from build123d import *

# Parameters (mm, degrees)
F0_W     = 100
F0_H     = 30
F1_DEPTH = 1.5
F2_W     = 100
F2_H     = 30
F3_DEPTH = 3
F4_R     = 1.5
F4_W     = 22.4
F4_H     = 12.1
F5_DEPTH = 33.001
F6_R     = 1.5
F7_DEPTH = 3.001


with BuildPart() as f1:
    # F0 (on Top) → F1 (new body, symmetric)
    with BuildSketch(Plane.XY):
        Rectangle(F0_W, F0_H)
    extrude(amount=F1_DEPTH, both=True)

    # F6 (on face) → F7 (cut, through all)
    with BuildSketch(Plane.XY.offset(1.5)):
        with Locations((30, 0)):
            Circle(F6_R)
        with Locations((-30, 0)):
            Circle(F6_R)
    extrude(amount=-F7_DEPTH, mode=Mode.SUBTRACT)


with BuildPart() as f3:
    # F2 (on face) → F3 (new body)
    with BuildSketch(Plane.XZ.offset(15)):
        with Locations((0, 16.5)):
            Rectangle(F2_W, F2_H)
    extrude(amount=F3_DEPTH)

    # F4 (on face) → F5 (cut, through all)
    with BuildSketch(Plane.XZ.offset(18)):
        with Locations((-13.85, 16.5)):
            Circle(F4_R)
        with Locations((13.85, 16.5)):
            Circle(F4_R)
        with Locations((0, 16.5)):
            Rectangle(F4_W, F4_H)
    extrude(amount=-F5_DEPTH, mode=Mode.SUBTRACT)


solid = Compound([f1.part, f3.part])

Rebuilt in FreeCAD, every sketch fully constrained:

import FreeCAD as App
import Part
import Sketcher

V = App.Vector


def add_polygon(sketch, points):
    """Adds a closed chain of lines whose ends are joined by coincident constraints."""
    first, n = sketch.GeometryCount, len(points)
    for a, b in zip(points, points[1:] + points[:1]):
        sketch.addGeometry(Part.LineSegment(App.Vector(*a, 0), App.Vector(*b, 0)), False)
    for i in range(n):
        sketch.addConstraint(Sketcher.Constraint("Coincident", first + i, 2, first + (i + 1) % n, 1))

doc = App.newDocument("Part")
body = doc.addObject("PartDesign::Body", "Body")

# Sketch on XY plane
sketch1 = body.newObject("Sketcher::SketchObject", "Sketch")
sketch1.AttachmentSupport = (doc.getObject("XY_Plane"), [""])
sketch1.MapMode = "FlatFace"
add_polygon(sketch1, [(-50, 15), (-50, -15), (50, -15), (50, 15)])  # lines 0-3
sketch1.addConstraint([
    Sketcher.Constraint("Vertical", 0),
    Sketcher.Constraint("Horizontal", 1),
    Sketcher.Constraint("Vertical", 2),
    Sketcher.Constraint("Horizontal", 3),
    Sketcher.Constraint("Symmetric", 0, 2, 2, 2, -1, 1),
    Sketcher.Constraint("DistanceX", 1, 1, 1, 2, 100.0),
    Sketcher.Constraint("DistanceY", 0, 2, 0, 1, 30.0),
])
pad1 = body.newObject("PartDesign::Pad", "Pad")
pad1.Profile = sketch1
pad1.Length = 3
pad1.Midplane = True

# Sketch on XY plane
sketch2 = body.newObject("Sketcher::SketchObject", "Sketch001")
sketch2.AttachmentSupport = (doc.getObject("XY_Plane"), [""])
sketch2.MapMode = "FlatFace"
sketch2.AttachmentOffset = App.Placement(V(0, 0, 1.5), App.Rotation())
sketch2.addGeometry([
    Part.Circle(V(30, 0, 0), V(0, 0, 1), 1.5),
    Part.Circle(V(-30, 0, 0), V(0, 0, 1), 1.5),
], False)
sketch2.addConstraint([
    Sketcher.Constraint("Equal", 0, 1),
    Sketcher.Constraint("Symmetric", 0, 3, 1, 3, -1, 1),
    Sketcher.Constraint("PointOnObject", 0, 3, -1),
    Sketcher.Constraint("Diameter", 0, 3.0),
    Sketcher.Constraint("DistanceX", -1, 1, 0, 3, 30.0),
])
pocket1 = body.newObject("PartDesign::Pocket", "Pocket")
pocket1.Profile = sketch2
pocket1.Type = "ThroughAll"
body2 = doc.addObject("PartDesign::Body", "Body001")

# Sketch on XZ plane
sketch3 = body2.newObject("Sketcher::SketchObject", "Sketch002")
sketch3.AttachmentSupport = (doc.getObject("XZ_Plane001"), [""])
sketch3.MapMode = "FlatFace"
sketch3.AttachmentOffset = App.Placement(V(0, 0, 15), App.Rotation())
add_polygon(sketch3, [(-50, 32), (-50, 2), (50, 2), (50, 32)])  # lines 0-3
sketch3.addConstraint([
    Sketcher.Constraint("Vertical", 0),
    Sketcher.Constraint("Horizontal", 1),
    Sketcher.Constraint("Vertical", 2),
    Sketcher.Constraint("Horizontal", 3),
    Sketcher.Constraint("DistanceX", 1, 1, 1, 2, 100.0),
    Sketcher.Constraint("DistanceY", 0, 2, 0, 1, 30.0),
    Sketcher.Constraint("DistanceX", 0, 2, -1, 1, 50.0),
    Sketcher.Constraint("DistanceY", -1, 1, 0, 2, 1.5),
])
pad2 = body2.newObject("PartDesign::Pad", "Pad001")
pad2.Profile = sketch3
pad2.Length = 3

# Sketch on XZ plane
sketch4 = body2.newObject("Sketcher::SketchObject", "Sketch003")
sketch4.AttachmentSupport = (doc.getObject("XZ_Plane001"), [""])
sketch4.MapMode = "FlatFace"
sketch4.AttachmentOffset = App.Placement(V(0, 0, 18), App.Rotation())
sketch4.addGeometry(Part.Circle(V(-13.8, 16.5, 0), V(0, 0, 1), 1.5), False)  # 0
sketch4.addGeometry(Part.Circle(V(13.8, 16.5, 0), V(0, 0, 1), 1.5), False)  # 1
add_polygon(sketch4, [(-11.2, 22.6), (-11.2, 10.4), (11.2, 10.4), (11.2, 22.6)])  # lines 2-5
sketch4.addConstraint([
    Sketcher.Constraint("Vertical", 2),
    Sketcher.Constraint("Horizontal", 3),
    Sketcher.Constraint("Vertical", 4),
    Sketcher.Constraint("Horizontal", 5),
    Sketcher.Constraint("Equal", 0, 1),
    Sketcher.Constraint("Symmetric", 0, 3, 1, 3, -2),
    Sketcher.Constraint("Diameter", 0, 3.0),
    Sketcher.Constraint("DistanceX", 3, 1, 3, 2, 22.4),
    Sketcher.Constraint("DistanceY", 2, 2, 2, 1, 12.1),
    Sketcher.Constraint("DistanceY", -1, 1, 0, 3, 16.5),
    Sketcher.Constraint("DistanceX", 2, 2, -1, 1, 11.2),
    Sketcher.Constraint("DistanceX", 0, 3, 1, 3, 27.7),
    Sketcher.Constraint("DistanceY", -1, 1, 2, 2, 10.45),
])
pocket2 = body2.newObject("PartDesign::Pocket", "Pocket001")
pocket2.Profile = sketch4
pocket2.Type = "ThroughAll"

doc.recompute()
